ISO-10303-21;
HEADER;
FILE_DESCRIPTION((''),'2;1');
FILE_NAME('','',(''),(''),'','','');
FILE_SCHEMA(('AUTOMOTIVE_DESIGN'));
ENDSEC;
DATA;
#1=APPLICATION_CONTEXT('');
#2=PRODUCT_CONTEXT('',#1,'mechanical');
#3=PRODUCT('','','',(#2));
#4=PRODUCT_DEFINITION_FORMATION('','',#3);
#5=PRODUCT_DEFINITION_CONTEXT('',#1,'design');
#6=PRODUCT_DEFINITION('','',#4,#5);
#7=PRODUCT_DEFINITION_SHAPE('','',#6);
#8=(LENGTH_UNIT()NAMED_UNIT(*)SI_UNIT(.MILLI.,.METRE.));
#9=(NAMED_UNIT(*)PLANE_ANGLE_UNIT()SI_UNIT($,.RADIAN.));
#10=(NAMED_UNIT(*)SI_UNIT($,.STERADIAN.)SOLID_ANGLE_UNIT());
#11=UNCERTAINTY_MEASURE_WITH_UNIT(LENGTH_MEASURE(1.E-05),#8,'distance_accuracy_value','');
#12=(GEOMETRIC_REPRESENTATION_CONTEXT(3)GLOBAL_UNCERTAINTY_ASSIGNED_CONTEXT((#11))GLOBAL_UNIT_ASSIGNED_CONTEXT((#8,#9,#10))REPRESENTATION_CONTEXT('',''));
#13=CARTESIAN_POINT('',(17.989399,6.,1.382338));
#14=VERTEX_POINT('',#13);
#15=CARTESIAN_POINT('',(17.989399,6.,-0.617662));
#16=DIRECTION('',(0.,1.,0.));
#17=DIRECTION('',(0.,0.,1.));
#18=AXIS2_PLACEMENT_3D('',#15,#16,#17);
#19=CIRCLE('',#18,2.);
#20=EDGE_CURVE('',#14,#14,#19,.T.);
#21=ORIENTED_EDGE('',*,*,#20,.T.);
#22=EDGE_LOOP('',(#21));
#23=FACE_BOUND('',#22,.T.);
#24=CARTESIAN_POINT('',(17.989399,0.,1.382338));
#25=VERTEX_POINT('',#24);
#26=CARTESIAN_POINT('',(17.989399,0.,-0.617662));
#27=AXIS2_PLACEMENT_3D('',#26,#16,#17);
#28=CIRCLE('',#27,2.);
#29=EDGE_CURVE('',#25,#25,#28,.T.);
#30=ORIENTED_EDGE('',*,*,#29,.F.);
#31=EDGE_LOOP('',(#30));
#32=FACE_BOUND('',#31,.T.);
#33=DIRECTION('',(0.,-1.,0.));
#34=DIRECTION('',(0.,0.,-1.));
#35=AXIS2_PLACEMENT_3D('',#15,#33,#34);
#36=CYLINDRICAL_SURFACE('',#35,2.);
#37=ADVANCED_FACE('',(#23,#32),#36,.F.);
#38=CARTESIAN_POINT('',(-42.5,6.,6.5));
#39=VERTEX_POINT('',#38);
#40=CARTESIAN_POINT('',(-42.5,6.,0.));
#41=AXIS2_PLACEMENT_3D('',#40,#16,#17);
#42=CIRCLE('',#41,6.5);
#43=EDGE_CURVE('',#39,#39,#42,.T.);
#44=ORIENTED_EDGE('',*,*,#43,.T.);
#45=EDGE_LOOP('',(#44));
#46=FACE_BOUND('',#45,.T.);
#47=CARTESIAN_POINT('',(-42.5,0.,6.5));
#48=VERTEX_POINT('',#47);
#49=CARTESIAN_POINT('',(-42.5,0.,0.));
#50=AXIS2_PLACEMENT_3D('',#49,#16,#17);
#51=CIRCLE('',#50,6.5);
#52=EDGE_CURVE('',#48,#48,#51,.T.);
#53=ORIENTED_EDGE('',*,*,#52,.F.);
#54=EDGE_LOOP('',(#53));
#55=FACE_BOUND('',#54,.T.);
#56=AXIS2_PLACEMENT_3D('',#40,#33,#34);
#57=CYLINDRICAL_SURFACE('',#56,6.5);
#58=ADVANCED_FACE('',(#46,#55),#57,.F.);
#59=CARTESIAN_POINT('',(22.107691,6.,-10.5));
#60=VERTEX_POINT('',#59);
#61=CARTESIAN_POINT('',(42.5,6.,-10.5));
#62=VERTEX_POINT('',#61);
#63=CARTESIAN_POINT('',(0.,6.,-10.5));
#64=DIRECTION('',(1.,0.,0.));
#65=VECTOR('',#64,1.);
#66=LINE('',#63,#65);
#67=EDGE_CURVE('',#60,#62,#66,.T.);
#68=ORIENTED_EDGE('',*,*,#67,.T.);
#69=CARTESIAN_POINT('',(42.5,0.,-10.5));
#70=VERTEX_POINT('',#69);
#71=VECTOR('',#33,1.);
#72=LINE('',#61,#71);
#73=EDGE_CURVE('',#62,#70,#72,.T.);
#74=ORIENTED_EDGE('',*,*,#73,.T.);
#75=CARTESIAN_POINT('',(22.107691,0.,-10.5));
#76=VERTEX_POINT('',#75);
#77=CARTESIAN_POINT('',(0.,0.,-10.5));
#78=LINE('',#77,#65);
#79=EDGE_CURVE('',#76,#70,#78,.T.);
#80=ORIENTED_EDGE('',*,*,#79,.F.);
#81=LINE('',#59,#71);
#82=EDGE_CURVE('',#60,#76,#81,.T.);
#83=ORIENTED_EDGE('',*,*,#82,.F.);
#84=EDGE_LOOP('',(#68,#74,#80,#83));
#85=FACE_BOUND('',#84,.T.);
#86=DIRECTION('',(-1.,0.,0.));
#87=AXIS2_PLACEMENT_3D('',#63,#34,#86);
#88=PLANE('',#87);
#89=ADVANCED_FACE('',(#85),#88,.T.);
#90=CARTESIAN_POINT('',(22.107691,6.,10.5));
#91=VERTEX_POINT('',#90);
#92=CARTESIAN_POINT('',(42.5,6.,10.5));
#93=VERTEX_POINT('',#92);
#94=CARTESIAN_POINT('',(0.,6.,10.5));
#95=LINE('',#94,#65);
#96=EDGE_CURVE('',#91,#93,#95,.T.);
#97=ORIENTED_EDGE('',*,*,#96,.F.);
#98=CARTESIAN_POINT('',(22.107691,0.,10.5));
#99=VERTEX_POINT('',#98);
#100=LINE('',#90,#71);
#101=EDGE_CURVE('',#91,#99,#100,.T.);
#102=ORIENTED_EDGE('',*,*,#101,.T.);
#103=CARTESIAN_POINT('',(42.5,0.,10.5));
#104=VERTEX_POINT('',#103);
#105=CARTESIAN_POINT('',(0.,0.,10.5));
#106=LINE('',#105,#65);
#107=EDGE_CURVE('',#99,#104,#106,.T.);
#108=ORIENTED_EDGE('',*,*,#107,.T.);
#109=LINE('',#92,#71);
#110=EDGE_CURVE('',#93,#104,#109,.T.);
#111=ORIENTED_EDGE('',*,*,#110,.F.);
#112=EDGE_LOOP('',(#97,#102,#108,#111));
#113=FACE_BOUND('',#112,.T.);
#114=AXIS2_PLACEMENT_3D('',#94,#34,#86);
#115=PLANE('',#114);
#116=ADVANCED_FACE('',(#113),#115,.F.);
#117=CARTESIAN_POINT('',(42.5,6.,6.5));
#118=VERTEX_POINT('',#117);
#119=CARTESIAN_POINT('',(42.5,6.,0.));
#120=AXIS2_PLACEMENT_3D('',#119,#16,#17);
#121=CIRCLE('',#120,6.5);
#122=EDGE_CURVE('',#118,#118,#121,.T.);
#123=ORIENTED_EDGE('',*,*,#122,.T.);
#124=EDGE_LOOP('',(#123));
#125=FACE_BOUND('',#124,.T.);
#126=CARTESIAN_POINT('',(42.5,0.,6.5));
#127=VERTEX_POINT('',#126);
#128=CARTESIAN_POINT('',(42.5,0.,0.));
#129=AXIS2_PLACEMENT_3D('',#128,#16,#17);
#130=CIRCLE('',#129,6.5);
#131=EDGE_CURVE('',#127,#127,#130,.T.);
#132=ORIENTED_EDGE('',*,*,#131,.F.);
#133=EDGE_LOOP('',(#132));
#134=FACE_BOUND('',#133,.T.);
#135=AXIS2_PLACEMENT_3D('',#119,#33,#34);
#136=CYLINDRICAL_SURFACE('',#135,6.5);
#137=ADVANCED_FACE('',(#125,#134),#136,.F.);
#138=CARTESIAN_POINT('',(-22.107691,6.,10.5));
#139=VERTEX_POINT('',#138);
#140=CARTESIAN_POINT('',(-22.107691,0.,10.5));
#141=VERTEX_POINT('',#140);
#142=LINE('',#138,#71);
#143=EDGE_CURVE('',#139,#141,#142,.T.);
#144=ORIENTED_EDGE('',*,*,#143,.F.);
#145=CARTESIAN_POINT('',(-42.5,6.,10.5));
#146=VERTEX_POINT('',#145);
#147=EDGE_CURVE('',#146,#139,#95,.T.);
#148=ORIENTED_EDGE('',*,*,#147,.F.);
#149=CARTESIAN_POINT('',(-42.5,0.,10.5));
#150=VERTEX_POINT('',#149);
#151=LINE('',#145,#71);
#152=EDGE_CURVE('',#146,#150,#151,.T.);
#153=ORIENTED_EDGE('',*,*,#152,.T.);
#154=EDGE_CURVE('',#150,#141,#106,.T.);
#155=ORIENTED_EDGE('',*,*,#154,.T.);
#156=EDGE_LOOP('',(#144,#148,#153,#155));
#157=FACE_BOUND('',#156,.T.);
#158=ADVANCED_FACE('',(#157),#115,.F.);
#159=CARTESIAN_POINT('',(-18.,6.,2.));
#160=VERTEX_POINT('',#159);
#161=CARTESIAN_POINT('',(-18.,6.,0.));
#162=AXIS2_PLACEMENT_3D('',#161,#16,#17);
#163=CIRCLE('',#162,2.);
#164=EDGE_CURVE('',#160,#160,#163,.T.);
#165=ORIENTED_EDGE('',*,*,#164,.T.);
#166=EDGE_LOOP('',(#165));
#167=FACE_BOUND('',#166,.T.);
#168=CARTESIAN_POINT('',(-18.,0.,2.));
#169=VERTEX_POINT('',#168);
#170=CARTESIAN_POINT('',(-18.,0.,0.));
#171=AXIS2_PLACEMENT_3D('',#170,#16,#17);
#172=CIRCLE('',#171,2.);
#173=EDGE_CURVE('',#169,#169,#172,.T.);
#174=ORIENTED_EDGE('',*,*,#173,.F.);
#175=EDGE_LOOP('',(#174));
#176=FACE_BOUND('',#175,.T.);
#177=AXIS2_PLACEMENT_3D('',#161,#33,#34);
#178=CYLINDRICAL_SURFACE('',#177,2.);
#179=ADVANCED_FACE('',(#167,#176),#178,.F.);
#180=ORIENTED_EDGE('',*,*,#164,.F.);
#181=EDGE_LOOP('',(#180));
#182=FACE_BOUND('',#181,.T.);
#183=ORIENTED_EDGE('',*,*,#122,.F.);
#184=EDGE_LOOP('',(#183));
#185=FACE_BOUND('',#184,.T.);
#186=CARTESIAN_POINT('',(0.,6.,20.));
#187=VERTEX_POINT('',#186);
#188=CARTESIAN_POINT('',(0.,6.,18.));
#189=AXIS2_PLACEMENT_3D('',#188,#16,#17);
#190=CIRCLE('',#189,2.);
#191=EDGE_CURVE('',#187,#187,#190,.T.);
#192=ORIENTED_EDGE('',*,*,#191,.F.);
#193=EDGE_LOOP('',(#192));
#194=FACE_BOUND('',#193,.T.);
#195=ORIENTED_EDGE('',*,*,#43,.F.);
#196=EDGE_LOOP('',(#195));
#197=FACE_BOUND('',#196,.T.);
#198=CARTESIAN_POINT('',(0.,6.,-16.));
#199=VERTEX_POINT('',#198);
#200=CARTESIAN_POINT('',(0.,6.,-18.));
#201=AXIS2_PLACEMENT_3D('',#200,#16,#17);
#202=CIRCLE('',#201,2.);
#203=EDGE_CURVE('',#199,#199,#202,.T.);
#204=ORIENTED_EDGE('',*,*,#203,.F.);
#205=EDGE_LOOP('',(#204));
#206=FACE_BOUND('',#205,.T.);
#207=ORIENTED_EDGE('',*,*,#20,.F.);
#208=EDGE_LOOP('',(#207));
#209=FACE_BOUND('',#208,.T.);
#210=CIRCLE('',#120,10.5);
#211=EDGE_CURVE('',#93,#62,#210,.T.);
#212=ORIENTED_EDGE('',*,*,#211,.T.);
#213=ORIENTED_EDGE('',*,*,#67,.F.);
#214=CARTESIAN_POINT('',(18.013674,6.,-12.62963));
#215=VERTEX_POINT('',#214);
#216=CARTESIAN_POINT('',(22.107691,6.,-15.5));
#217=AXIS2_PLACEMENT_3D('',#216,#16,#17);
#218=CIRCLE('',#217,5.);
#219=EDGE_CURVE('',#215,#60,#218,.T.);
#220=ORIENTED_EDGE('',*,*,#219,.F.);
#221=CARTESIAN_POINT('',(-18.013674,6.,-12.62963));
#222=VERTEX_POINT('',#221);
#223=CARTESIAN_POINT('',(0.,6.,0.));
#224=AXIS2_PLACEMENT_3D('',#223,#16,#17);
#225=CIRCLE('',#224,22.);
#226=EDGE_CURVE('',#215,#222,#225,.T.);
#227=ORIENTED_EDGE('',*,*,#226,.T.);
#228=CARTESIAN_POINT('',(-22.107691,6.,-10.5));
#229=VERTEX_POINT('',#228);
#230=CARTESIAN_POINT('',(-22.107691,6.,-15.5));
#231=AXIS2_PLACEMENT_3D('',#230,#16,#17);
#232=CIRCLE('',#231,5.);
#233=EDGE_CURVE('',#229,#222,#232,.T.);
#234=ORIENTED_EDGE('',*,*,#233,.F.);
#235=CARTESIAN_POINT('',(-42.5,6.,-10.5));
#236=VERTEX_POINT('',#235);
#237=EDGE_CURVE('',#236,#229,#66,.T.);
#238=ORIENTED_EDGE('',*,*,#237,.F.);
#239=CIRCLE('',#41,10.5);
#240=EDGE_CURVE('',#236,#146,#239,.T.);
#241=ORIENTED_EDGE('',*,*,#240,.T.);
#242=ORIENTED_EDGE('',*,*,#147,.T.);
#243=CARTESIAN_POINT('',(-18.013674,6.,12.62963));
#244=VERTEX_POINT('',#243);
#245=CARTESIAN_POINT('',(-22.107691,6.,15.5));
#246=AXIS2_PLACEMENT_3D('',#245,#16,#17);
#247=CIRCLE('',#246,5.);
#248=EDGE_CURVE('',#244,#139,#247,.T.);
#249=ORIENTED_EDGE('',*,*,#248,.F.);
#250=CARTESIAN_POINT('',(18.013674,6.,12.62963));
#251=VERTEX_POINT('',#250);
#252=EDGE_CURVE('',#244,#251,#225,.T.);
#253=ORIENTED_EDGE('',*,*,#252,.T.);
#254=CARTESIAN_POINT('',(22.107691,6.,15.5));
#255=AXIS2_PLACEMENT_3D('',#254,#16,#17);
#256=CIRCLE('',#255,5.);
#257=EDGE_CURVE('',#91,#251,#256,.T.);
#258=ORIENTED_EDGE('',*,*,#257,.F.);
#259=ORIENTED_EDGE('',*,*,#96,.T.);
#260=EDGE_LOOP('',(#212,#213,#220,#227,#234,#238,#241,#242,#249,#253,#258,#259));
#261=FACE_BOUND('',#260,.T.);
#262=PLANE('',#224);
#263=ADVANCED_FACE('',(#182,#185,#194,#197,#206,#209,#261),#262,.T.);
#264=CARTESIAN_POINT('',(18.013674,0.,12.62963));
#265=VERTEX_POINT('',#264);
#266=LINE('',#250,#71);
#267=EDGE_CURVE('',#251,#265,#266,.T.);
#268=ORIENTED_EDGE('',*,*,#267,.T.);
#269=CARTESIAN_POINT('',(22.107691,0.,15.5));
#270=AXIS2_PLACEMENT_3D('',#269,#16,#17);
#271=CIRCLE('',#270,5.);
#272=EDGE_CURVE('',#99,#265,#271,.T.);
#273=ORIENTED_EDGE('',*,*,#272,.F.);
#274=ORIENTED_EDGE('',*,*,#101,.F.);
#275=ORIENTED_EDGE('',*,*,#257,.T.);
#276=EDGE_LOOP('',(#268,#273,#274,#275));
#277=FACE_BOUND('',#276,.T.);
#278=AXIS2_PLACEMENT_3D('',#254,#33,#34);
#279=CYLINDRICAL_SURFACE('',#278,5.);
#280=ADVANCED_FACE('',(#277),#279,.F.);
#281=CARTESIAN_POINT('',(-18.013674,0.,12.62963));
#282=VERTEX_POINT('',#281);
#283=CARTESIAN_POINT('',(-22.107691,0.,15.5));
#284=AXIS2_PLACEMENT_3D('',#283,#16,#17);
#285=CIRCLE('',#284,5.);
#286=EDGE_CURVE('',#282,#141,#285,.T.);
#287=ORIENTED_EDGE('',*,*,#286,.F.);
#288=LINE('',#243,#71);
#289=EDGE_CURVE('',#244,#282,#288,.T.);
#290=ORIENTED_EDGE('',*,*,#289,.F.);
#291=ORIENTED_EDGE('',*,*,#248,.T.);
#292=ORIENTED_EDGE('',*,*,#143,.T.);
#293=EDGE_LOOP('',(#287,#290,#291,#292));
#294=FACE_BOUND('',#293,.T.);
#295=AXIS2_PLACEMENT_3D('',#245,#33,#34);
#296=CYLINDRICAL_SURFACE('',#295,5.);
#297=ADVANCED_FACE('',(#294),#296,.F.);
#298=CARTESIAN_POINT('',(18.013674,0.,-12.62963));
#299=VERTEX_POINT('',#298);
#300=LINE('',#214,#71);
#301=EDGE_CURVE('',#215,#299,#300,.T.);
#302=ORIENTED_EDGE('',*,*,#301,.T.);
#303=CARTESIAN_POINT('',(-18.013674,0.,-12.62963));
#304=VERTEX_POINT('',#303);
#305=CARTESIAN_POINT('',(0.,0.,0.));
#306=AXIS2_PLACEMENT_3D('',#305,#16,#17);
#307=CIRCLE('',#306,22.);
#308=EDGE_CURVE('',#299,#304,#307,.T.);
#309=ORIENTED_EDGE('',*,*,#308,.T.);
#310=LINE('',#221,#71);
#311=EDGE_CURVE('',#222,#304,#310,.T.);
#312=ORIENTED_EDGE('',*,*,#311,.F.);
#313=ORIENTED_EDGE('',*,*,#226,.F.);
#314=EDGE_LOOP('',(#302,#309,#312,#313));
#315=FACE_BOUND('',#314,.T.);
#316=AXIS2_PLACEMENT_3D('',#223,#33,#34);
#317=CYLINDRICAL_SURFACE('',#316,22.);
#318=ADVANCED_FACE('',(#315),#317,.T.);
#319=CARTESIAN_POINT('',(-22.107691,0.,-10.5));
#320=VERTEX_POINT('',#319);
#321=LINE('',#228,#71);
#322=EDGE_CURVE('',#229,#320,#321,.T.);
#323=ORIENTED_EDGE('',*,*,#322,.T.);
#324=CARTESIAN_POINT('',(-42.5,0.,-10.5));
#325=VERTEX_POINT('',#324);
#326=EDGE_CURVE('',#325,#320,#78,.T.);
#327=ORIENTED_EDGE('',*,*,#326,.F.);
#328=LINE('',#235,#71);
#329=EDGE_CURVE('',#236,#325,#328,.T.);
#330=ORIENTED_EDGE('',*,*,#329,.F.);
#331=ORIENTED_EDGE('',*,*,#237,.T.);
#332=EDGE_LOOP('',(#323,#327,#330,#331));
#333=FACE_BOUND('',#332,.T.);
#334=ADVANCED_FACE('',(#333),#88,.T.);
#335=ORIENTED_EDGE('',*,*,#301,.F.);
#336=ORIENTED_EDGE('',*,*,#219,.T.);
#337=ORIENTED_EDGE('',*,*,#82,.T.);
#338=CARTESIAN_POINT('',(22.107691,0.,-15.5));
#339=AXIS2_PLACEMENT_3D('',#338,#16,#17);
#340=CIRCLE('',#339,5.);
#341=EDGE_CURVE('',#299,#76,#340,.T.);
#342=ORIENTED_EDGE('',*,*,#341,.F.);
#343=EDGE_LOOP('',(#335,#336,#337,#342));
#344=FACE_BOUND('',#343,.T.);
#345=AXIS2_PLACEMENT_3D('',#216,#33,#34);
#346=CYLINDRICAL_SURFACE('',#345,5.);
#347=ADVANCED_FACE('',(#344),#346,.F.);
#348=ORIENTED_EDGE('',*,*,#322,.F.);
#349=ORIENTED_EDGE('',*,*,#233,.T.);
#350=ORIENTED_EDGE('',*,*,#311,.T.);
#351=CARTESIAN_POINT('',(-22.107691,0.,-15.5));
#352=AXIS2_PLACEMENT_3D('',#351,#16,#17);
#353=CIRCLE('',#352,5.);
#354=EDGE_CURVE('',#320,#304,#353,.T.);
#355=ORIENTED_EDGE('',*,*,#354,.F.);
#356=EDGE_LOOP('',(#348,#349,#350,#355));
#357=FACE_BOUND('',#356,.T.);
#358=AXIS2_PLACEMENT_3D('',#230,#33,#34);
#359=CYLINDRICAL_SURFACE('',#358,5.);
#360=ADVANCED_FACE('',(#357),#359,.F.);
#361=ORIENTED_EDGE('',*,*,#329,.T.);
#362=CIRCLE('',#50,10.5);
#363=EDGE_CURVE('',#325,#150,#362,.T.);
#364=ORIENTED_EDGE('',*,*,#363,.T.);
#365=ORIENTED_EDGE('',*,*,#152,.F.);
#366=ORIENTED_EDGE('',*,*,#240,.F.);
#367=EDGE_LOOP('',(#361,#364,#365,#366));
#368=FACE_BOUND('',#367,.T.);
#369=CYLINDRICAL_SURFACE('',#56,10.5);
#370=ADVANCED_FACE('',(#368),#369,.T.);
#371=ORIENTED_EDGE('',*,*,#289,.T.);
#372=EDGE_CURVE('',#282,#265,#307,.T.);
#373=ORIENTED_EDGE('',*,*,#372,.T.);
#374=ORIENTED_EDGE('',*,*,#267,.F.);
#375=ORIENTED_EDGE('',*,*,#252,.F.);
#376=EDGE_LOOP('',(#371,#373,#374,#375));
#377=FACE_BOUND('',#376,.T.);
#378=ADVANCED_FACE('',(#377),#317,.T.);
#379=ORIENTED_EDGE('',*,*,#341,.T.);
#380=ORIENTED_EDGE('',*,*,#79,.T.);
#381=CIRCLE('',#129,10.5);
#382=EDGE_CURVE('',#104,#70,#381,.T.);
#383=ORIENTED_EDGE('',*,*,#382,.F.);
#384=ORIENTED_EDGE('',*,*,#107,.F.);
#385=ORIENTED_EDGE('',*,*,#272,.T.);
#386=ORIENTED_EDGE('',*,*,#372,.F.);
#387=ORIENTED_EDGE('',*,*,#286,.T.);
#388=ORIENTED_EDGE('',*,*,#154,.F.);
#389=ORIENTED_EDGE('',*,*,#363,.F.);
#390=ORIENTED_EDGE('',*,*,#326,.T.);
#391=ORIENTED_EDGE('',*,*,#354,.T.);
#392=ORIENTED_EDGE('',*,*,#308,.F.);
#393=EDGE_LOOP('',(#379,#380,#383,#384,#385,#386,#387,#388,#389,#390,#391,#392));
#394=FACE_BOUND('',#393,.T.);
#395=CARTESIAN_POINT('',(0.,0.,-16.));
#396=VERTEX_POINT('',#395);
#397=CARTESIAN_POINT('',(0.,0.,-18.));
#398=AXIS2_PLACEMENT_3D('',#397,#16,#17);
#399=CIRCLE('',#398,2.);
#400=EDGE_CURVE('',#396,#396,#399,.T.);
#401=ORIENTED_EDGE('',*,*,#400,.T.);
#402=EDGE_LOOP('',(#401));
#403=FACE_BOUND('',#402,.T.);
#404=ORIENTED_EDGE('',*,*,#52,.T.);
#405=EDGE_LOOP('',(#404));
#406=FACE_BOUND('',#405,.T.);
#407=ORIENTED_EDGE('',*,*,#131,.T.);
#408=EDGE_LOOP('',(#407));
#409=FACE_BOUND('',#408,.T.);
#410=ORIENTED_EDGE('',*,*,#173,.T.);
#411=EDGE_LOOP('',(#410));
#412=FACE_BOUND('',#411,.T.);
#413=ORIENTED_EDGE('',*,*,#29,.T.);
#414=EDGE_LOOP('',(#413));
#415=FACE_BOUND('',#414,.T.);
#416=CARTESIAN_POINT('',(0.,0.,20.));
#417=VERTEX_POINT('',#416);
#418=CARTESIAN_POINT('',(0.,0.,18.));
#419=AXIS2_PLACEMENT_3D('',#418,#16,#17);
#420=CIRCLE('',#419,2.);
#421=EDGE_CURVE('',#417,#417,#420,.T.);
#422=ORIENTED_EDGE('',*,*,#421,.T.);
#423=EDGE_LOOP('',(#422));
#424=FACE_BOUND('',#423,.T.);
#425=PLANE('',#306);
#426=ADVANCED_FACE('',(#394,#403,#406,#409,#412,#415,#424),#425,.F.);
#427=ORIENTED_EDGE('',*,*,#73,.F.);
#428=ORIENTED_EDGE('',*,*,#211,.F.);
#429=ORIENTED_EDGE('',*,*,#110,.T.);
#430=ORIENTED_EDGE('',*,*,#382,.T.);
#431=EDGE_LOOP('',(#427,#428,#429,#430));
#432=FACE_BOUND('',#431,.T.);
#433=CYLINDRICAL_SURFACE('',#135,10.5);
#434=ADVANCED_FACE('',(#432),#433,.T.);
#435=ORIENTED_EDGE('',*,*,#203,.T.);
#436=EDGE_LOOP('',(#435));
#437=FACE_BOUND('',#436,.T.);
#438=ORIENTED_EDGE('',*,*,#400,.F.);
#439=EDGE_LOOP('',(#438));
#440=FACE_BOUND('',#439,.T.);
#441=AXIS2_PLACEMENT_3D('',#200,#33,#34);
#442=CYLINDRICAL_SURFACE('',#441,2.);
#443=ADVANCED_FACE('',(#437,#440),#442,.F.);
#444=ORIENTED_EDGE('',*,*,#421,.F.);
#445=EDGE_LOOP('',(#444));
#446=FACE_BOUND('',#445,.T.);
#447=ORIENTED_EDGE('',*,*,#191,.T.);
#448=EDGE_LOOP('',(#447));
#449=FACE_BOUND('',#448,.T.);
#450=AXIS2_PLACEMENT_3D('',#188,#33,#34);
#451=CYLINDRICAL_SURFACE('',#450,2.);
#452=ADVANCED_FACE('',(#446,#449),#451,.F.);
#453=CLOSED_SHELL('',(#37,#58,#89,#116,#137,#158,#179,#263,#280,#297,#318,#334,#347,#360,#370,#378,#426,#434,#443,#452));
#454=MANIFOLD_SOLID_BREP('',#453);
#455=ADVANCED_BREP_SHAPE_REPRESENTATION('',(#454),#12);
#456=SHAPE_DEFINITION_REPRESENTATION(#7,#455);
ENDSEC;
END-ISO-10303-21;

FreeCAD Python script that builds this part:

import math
import FreeCAD as App
import Part
import Sketcher

V = App.Vector

doc = App.newDocument("Part")
body = doc.addObject("PartDesign::Body", "Body")

sketch1 = doc.addObject("Sketcher::SketchObject", "Sketch")
body.addObject(sketch1)
sketch1.AttachmentSupport = (doc.XZ_Plane, [""])
sketch1.MapMode = "FlatFace"
sketch1.addGeometry([
    Part.LineSegment(V(-22.1, -10.5, 0), V(-42.5, -10.5, 0)),
    Part.ArcOfCircle(Part.Circle(V(-42.5, 0, 0), V(0, 0, 1), 10.5), math.radians(90), math.radians(270)),
    Part.LineSegment(V(-42.5, 10.5, 0), V(-22.1, 10.5, 0)),
    Part.ArcOfCircle(Part.Circle(V(-22.1, 15.5, 0), V(0, 0, 1), 5), math.radians(-90), math.radians(-35)),
    Part.ArcOfCircle(Part.Circle(V(0, 0, 0), V(0, 0, 1), 22), math.radians(35), math.radians(145)),
    Part.ArcOfCircle(Part.Circle(V(22.1, 15.5, 0), V(0, 0, 1), 5), math.radians(-145), math.radians(-90)),
    Part.LineSegment(V(22.1, 10.5, 0), V(42.5, 10.5, 0)),
    Part.ArcOfCircle(Part.Circle(V(42.5, 0, 0), V(0, 0, 1), 10.5), math.radians(-90), math.radians(90)),
    Part.LineSegment(V(42.5, -10.5, 0), V(22.1, -10.5, 0)),
    Part.ArcOfCircle(Part.Circle(V(22.1, -15.5, 0), V(0, 0, 1), 5), math.radians(90), math.radians(145)),
    Part.ArcOfCircle(Part.Circle(V(0, 0, 0), V(0, 0, 1), 22), math.radians(-145), math.radians(-35)),
    Part.ArcOfCircle(Part.Circle(V(-22.1, -15.5, 0), V(0, 0, 1), 5), math.radians(35), math.radians(90)),
    Part.Circle(V(0, 18, 0), V(0, 0, 1), 2),
    Part.Circle(V(-42.5, 0, 0), V(0, 0, 1), 6.5),
    Part.Circle(V(-18, 0, 0), V(0, 0, 1), 2),
    Part.Circle(V(0, -18, 0), V(0, 0, 1), 2),
    Part.Circle(V(18, -0.6, 0), V(0, 0, 1), 2),
    Part.Circle(V(42.5, 0, 0), V(0, 0, 1), 6.5),
], False)
sketch1.addConstraint([
    Sketcher.Constraint("Tangent", 0, 2, 1, 2),
    Sketcher.Constraint("Tangent", 1, 1, 2, 1),
    Sketcher.Constraint("Tangent", 2, 2, 3, 1),
    Sketcher.Constraint("Tangent", 3, 2, 4, 2),
    Sketcher.Constraint("Tangent", 4, 1, 5, 1),
    Sketcher.Constraint("Tangent", 5, 2, 6, 1),
    Sketcher.Constraint("Tangent", 6, 2, 7, 2),
    Sketcher.Constraint("Tangent", 7, 1, 8, 1),
    Sketcher.Constraint("Tangent", 8, 2, 9, 1),
    Sketcher.Constraint("Tangent", 9, 2, 10, 2),
    Sketcher.Constraint("Tangent", 10, 1, 11, 1),
    Sketcher.Constraint("Tangent", 11, 2, 0, 1),
    Sketcher.Constraint("Horizontal", 0),
    Sketcher.Constraint("Horizontal", 2),
    Sketcher.Constraint("Horizontal", 6),
    Sketcher.Constraint("Horizontal", 8),
    Sketcher.Constraint("Coincident", 4, 3, -1, 1),
    Sketcher.Constraint("Coincident", 10, 3, -1, 1),
    Sketcher.Constraint("Coincident", 13, 3, 1, 3),
    Sketcher.Constraint("Coincident", 17, 3, 7, 3),
    Sketcher.Constraint("Equal", 3, 5),
    Sketcher.Constraint("Equal", 1, 7),
    Sketcher.Constraint("Equal", 5, 9),
    Sketcher.Constraint("Equal", 4, 10),
    Sketcher.Constraint("Equal", 9, 11),
    Sketcher.Constraint("Equal", 12, 14),
    Sketcher.Constraint("Equal", 14, 15),
    Sketcher.Constraint("Equal", 15, 16),
    Sketcher.Constraint("Equal", 13, 17),
    Sketcher.Constraint("Symmetric", 1, 3, 7, 3, -1, 1),
    Sketcher.Constraint("Symmetric", 12, 3, 15, 3, -1, 1),
    Sketcher.Constraint("PointOnObject", 1, 3, -1),
    Sketcher.Constraint("PointOnObject", 12, 3, -2),
    Sketcher.Constraint("PointOnObject", 14, 3, -1),
    Sketcher.Constraint("Diameter", 12, 4.0),
    Sketcher.Constraint("Diameter", 13, 13.0),
    Sketcher.Constraint("Radius", 3, 5.0),
    Sketcher.Constraint("Radius", 4, 22.0),
    Sketcher.Constraint("Radius", 1, 10.5),
    Sketcher.Constraint("DistanceY", -1, 1, 12, 3, 18.0),
    Sketcher.Constraint("DistanceX", 14, 3, -1, 1, 18.0),
    Sketcher.Constraint("DistanceX", 1, 3, 7, 3, 85.0),
    Sketcher.Constraint("DistanceX", -1, 1, 16, 3, 17.989399),
    Sketcher.Constraint("DistanceY", 16, 3, -1, 1, 0.617662),
])
pad1 = doc.addObject("PartDesign::Pad", "Pad")
body.addObject(pad1)
pad1.Profile = sketch1
pad1.Length = 6
pad1.Reversed = True

doc.recompute()
